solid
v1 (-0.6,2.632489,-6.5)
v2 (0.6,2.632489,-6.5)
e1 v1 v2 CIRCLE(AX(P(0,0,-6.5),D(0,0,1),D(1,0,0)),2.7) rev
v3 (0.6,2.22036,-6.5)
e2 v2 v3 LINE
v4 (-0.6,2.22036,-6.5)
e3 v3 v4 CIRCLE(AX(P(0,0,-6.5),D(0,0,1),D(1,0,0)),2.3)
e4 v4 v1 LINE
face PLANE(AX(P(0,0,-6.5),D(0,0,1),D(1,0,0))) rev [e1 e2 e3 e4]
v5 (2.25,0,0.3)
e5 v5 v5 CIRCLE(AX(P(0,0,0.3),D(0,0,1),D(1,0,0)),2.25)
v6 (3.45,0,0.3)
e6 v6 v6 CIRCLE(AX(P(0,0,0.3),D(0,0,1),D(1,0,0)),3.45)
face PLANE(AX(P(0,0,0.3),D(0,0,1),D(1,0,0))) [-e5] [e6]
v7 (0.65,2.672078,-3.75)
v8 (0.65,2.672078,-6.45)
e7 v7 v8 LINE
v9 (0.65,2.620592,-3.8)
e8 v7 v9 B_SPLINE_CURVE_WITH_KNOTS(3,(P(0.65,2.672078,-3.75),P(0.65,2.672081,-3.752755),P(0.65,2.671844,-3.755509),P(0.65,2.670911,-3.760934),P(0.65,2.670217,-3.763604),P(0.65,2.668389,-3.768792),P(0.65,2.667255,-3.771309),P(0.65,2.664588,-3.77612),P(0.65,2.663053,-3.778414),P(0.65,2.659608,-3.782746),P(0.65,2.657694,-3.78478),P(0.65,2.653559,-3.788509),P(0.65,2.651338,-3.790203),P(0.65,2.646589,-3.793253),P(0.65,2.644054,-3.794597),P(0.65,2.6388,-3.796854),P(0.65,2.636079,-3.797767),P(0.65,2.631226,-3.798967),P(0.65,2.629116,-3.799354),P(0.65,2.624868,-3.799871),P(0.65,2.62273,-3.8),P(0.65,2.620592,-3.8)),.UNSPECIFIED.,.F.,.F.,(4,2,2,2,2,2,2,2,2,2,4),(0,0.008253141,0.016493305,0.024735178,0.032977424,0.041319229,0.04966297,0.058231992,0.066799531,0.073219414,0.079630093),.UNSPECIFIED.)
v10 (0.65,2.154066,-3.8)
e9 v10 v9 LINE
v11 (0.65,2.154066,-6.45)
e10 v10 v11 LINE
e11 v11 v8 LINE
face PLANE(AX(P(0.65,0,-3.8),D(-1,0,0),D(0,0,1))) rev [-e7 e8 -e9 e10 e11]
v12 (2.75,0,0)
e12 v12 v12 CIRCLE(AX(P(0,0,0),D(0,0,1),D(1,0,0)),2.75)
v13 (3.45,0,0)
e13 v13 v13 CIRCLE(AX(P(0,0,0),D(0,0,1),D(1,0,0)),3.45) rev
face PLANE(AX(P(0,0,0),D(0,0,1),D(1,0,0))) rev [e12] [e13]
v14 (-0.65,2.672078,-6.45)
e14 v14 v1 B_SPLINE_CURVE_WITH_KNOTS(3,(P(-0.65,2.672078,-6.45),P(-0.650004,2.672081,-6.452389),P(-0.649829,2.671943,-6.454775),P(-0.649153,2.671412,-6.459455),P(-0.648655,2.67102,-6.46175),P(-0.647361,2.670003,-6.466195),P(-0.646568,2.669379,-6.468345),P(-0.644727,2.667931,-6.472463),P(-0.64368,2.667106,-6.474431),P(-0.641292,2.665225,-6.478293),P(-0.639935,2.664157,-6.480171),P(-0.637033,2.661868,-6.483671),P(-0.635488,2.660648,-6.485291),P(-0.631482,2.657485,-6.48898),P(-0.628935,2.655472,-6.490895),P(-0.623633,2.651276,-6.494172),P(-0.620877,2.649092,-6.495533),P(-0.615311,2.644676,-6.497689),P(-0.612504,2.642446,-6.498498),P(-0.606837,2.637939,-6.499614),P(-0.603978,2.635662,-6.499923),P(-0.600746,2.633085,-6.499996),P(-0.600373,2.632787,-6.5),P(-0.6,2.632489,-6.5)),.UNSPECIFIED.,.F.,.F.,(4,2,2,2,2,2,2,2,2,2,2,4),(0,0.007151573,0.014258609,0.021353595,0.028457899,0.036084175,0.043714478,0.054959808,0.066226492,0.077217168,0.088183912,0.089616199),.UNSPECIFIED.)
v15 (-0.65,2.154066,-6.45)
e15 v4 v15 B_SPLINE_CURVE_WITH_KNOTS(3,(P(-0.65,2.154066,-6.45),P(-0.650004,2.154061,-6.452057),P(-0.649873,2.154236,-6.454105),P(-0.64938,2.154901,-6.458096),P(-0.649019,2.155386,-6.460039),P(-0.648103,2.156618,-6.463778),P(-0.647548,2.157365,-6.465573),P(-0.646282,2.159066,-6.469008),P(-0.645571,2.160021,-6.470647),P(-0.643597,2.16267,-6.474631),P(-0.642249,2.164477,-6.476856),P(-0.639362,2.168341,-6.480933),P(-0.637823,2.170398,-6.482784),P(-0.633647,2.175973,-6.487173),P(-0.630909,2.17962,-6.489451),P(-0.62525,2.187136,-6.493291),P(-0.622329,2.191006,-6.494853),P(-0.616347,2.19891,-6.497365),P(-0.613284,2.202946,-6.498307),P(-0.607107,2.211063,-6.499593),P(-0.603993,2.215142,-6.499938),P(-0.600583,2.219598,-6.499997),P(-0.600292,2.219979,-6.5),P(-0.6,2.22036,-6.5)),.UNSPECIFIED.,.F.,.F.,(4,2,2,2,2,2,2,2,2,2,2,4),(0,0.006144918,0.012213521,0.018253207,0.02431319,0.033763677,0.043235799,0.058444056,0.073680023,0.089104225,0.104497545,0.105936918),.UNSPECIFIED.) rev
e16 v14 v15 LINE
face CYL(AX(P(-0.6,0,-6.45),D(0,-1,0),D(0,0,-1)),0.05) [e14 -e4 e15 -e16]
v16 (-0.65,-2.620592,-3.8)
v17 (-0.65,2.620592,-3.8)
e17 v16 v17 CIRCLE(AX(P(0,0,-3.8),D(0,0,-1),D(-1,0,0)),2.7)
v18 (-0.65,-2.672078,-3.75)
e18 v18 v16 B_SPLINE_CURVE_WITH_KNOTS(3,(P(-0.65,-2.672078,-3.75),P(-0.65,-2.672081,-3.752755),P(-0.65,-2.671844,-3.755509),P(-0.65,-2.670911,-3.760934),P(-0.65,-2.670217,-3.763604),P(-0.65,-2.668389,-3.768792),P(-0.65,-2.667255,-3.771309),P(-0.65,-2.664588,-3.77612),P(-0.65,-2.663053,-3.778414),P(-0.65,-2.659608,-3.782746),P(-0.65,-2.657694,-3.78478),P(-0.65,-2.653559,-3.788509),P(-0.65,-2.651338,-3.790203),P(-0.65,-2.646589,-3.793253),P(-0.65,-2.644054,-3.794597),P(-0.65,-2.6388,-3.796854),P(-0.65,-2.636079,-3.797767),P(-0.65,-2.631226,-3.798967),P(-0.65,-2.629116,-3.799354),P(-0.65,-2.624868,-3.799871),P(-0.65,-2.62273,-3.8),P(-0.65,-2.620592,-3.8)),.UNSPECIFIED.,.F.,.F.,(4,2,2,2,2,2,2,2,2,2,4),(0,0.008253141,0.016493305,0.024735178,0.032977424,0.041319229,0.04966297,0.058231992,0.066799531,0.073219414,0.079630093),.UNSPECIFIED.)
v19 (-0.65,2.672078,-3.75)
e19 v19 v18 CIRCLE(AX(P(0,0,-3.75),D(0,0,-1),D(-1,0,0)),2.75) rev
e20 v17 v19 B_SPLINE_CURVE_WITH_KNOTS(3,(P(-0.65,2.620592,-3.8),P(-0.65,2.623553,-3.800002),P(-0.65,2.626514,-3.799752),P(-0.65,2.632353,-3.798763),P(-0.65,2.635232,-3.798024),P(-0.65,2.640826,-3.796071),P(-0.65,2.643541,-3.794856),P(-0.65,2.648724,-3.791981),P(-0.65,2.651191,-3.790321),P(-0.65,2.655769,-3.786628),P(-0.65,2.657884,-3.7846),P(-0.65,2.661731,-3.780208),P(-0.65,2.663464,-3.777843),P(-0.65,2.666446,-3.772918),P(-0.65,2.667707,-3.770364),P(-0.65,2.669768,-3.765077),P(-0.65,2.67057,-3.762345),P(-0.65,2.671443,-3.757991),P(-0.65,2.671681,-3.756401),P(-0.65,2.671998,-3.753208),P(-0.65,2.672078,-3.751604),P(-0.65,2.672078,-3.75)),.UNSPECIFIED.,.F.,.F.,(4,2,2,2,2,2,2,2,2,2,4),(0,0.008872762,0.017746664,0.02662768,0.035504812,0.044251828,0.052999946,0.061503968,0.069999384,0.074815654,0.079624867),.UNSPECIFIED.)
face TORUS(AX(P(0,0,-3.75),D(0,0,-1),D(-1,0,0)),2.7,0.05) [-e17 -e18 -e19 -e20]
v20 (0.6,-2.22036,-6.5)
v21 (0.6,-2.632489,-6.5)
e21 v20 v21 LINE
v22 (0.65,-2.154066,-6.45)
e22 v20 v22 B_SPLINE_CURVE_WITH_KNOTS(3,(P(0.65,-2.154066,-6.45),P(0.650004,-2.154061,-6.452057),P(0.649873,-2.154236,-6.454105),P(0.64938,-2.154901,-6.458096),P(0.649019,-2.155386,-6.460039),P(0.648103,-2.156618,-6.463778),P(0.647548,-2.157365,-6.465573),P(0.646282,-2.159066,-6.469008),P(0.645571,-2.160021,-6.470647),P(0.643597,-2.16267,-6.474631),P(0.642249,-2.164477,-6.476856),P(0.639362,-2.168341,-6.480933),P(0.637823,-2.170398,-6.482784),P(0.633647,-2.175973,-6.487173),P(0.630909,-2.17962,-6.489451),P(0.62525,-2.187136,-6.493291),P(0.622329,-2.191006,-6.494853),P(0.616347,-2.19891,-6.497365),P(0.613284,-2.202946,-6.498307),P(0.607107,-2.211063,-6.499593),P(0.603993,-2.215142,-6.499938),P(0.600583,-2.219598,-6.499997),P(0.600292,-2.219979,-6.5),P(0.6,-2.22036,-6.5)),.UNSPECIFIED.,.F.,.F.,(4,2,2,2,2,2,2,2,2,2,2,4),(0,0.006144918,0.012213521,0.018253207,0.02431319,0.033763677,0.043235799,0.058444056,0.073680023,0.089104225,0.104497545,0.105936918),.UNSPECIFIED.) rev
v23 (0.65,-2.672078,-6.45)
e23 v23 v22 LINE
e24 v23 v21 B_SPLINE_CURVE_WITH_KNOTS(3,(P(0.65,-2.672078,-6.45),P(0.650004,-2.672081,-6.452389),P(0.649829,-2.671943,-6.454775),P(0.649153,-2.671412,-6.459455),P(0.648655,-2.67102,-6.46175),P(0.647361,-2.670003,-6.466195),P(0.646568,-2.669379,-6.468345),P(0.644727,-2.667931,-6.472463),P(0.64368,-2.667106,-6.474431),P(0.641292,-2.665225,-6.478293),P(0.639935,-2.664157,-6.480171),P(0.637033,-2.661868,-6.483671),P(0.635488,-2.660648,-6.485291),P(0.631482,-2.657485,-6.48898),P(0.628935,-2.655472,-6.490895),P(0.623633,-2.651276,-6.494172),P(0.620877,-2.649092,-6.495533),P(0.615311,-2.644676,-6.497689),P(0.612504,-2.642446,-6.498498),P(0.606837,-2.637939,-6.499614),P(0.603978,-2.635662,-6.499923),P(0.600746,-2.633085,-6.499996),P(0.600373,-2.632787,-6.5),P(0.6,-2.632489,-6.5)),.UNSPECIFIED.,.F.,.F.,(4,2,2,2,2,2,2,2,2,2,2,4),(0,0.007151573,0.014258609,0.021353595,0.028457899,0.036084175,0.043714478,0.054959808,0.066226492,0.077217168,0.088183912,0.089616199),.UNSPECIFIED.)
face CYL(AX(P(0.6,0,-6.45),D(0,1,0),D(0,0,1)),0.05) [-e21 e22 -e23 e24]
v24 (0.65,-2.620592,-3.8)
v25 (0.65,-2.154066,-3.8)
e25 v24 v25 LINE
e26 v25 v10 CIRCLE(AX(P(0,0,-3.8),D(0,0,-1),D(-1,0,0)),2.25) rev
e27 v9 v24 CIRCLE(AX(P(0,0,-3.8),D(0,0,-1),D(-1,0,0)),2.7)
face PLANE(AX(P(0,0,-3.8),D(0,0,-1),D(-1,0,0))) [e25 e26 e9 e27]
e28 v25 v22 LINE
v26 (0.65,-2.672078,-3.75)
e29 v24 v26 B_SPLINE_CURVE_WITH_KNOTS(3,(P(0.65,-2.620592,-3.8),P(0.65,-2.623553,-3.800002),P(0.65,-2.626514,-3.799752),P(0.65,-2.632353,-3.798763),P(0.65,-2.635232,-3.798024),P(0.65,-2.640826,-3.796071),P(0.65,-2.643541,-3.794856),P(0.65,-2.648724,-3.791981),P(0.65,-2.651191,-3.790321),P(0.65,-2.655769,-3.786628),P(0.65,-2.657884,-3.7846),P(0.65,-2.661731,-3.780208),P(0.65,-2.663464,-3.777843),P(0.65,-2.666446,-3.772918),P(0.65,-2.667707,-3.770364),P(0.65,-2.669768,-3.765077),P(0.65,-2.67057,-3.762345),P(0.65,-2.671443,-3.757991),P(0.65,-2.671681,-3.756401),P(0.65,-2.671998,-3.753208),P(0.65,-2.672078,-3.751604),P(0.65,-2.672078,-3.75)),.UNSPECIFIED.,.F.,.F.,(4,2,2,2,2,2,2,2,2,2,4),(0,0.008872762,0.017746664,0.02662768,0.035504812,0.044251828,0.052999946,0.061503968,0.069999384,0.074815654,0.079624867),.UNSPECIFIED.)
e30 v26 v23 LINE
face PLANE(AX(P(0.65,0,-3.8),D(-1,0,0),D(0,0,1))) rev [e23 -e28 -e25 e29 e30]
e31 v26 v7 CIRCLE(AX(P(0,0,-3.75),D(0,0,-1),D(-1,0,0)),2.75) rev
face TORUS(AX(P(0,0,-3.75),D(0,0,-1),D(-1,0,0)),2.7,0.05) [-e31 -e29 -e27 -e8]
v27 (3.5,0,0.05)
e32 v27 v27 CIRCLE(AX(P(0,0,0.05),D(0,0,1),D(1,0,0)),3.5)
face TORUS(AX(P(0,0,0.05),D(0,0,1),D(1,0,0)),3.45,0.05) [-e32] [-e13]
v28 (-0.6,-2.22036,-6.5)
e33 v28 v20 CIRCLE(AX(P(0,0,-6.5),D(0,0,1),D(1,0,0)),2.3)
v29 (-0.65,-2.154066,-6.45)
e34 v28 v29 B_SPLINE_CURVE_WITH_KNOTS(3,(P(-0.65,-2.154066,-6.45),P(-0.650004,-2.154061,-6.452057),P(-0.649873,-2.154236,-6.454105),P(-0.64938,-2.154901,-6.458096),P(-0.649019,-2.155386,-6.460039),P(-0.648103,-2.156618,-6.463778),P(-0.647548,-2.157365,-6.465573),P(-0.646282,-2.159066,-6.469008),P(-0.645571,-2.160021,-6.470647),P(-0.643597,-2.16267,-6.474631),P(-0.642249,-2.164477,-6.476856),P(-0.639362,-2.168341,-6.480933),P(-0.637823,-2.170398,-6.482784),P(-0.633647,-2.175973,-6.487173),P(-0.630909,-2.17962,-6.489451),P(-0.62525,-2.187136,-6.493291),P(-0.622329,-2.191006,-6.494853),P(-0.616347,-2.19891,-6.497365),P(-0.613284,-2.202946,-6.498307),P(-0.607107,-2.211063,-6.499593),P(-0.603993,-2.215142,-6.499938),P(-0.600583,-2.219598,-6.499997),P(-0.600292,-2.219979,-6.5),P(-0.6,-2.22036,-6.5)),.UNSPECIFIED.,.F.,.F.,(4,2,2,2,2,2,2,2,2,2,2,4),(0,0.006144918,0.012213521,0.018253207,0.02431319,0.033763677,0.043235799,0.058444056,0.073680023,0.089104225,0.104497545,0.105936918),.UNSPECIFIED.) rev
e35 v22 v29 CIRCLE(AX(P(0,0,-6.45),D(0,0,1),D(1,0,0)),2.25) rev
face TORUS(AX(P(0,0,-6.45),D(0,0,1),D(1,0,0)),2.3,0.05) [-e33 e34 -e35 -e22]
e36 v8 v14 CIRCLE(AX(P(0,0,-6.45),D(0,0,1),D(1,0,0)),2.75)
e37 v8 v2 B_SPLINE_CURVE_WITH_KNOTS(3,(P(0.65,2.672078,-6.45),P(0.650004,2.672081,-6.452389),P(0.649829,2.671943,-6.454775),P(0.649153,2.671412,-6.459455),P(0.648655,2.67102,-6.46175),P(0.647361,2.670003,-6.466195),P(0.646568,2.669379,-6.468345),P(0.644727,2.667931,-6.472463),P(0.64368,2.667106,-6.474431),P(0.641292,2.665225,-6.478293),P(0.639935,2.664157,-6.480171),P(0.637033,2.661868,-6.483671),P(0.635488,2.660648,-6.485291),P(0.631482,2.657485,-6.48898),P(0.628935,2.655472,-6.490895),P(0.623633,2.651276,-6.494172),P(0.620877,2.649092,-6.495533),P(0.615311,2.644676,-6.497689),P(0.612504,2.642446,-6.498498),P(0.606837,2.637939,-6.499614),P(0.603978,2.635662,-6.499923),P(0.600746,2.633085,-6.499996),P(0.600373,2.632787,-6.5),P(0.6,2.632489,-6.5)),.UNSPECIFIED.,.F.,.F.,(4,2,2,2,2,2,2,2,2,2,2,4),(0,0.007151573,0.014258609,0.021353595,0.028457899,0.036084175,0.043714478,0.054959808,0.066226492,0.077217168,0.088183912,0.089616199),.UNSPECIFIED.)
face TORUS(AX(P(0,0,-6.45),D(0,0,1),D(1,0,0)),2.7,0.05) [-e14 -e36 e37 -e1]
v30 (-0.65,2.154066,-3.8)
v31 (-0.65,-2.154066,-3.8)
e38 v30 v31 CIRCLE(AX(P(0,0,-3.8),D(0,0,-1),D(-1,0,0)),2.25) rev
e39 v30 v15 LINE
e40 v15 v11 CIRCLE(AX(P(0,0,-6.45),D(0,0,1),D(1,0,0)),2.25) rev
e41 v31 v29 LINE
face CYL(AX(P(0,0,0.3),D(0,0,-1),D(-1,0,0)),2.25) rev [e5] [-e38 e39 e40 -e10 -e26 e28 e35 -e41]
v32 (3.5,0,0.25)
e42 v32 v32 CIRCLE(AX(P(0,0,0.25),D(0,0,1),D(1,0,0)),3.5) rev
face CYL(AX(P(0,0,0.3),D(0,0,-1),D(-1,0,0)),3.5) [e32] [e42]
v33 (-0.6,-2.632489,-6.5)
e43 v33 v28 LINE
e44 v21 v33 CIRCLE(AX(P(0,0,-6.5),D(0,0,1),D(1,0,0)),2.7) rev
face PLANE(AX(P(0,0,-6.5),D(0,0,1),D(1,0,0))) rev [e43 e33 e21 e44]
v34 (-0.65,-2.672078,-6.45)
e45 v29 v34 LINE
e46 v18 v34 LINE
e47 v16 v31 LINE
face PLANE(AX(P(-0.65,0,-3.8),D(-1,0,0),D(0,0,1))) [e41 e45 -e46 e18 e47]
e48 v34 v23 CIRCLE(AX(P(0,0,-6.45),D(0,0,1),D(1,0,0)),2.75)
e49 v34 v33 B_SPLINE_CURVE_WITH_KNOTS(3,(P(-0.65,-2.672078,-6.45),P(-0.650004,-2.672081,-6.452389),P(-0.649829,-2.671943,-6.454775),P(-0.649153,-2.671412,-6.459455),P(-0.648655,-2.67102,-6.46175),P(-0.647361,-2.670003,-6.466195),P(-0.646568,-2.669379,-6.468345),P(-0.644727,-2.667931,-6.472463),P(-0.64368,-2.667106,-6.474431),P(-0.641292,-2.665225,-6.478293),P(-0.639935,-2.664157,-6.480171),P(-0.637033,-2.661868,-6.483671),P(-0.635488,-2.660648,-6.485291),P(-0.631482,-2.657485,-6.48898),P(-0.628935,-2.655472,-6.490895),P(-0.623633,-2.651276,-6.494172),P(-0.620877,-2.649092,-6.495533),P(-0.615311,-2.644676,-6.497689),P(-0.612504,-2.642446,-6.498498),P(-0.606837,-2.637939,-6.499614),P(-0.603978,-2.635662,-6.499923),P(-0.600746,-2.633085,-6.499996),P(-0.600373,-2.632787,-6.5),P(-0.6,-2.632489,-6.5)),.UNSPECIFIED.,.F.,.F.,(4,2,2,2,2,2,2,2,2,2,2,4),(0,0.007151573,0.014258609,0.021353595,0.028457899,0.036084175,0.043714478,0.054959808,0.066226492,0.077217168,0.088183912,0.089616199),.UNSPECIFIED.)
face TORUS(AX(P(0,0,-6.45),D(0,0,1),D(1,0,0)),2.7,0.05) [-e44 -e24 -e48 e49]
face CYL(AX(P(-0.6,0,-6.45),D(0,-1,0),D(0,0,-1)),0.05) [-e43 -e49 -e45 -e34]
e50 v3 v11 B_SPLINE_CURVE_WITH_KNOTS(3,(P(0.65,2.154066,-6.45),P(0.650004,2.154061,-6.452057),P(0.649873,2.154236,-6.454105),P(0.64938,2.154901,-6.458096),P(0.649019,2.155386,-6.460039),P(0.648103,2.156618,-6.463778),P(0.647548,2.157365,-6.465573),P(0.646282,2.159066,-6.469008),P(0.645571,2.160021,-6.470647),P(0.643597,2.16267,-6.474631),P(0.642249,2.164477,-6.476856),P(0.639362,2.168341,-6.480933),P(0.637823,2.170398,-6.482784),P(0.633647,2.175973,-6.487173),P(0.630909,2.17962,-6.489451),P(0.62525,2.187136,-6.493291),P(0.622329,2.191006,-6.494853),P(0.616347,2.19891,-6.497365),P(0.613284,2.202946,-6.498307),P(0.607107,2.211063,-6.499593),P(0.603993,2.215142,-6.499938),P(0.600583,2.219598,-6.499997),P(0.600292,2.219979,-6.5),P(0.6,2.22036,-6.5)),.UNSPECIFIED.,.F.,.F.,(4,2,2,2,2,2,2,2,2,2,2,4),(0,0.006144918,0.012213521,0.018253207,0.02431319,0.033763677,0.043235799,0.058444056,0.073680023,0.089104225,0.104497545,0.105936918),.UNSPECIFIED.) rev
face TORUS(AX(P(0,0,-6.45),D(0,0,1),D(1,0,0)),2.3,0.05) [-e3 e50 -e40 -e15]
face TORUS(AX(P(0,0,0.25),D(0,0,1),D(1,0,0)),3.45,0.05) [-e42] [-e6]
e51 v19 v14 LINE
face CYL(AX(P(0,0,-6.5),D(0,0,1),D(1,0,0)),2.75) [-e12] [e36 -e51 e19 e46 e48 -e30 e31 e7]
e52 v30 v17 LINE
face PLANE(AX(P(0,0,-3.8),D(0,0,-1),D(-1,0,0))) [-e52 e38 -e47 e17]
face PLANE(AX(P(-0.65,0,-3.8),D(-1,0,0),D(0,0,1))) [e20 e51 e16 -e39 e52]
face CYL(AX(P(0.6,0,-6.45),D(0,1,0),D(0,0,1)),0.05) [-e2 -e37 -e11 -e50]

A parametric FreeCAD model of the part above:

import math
import FreeCAD as App
import Part
import Sketcher

V = App.Vector


def edges_at(feature, points):
    """Names of the edges that pass closest to the given points."""
    edges = feature.Shape.Edges
    near = lambda p: min(range(len(edges)), key=lambda i: edges[i].distToShape(Part.Vertex(*p))[0])
    return sorted({f"Edge{near(p) + 1}" for p in points})

doc = App.newDocument("Part")
params = doc.addObject("Spreadsheet::Sheet", "Params")
for row, (alias, value) in enumerate([
    ("sketch1_diameter", "7 mm"),
    ("sketch1_diameter2", "4.5 mm"),
    ("pad1_length", "0.3 mm"),
    ("sketch2_diameter", "5.5 mm"),
    ("sketch2_diameter2", "4.5 mm"),
    ("pad2_length", "6.5 mm"),
    ("sketch3_radius", "2.75 mm"),
    ("sketch3_radius2", "2.25 mm"),
    ("pocket1_length", "2.7 mm"),
    ("fillet_radius", "0.05 mm"),
], start=1):
    params.set(f"A{row}", alias)
    params.set(f"B{row}", "=" + value)
    params.setAlias(f"B{row}", alias)

body = doc.addObject("PartDesign::Body", "Body")

# Sketch on XY plane
sketch1 = body.newObject("Sketcher::SketchObject", "Sketch")
sketch1.AttachmentSupport = (doc.getObject("XY_Plane"), [""])
sketch1.MapMode = "FlatFace"
sketch1.addGeometry([
    Part.Circle(V(0, 0, 0), V(0, 0, 1), 3.5),
    Part.Circle(V(0, 0, 0), V(0, 0, 1), 2.2),
], False)
sketch1.addConstraint([
    Sketcher.Constraint("Coincident", 0, 3, -1, 1),
    Sketcher.Constraint("Coincident", 1, 3, -1, 1),
    Sketcher.Constraint("Diameter", 0, 7.0),
    Sketcher.Constraint("Diameter", 1, 4.5),
])
sketch1.setExpression("Constraints[2]", "Params.sketch1_diameter")
sketch1.setExpression("Constraints[3]", "Params.sketch1_diameter2")
pad1 = body.newObject("PartDesign::Pad", "Pad")
pad1.Profile = sketch1
pad1.setExpression("Length", "Params.pad1_length")

# Sketch on XY plane
sketch2 = body.newObject("Sketcher::SketchObject", "Sketch001")
sketch2.AttachmentSupport = (doc.getObject("XY_Plane"), [""])
sketch2.MapMode = "FlatFace"
sketch2.addGeometry([
    Part.Circle(V(0, 0, 0), V(0, 0, 1), 2.8),
    Part.Circle(V(0, 0, 0), V(0, 0, 1), 2.2),
], False)
sketch2.addConstraint([
    Sketcher.Constraint("Coincident", 0, 3, -1, 1),
    Sketcher.Constraint("Coincident", 1, 3, -1, 1),
    Sketcher.Constraint("Diameter", 0, 5.5),
    Sketcher.Constraint("Diameter", 1, 4.5),
])
sketch2.setExpression("Constraints[2]", "Params.sketch2_diameter")
sketch2.setExpression("Constraints[3]", "Params.sketch2_diameter2")
pad2 = body.newObject("PartDesign::Pad", "Pad001")
pad2.Profile = sketch2
pad2.setExpression("Length", "Params.pad2_length")
pad2.Reversed = True

# Sketch on XY plane
sketch3 = body.newObject("Sketcher::SketchObject", "Sketch002")
sketch3.AttachmentSupport = (doc.getObject("XY_Plane"), [""])
sketch3.MapMode = "FlatFace"
sketch3.AttachmentOffset = App.Placement(V(0, 0, -6.5), App.Rotation())
sketch3.addGeometry([
    Part.ArcOfCircle(Part.Circle(V(0, 0, 0), V(0, 0, 1), 2.8), math.radians(-76), math.radians(76)),  # 0
    Part.LineSegment(V(0.7, -2.7, 0), V(0.7, -2.2, 0)),  # 1
    Part.ArcOfCircle(Part.Circle(V(0, 0, 0), V(0, 0, 1), 2.2), math.radians(-73), math.radians(73)),  # 2
    Part.LineSegment(V(0.7, 2.2, 0), V(0.7, 2.7, 0)),  # 3
    Part.LineSegment(V(-0.7, -2.2, 0), V(-0.7, -2.7, 0)),  # 4
    Part.ArcOfCircle(Part.Circle(V(0, 0, 0), V(0, 0, 1), 2.7), math.radians(180), math.radians(256)),  # 5
    Part.ArcOfCircle(Part.Circle(V(0, 0, 0), V(0, 0, 1), 2.7), math.radians(104), math.radians(180)),  # 6
    Part.LineSegment(V(-0.7, 2.7, 0), V(-0.7, 2.2, 0)),  # 7
    Part.ArcOfCircle(Part.Circle(V(0, 0, 0), V(0, 0, 1), 2.3), math.radians(107), math.radians(180)),  # 8
    Part.ArcOfCircle(Part.Circle(V(0, 0, 0), V(0, 0, 1), 2.3), math.radians(-180), math.radians(-107)),  # 9
], False)
sketch3.addConstraint([
    Sketcher.Constraint("Coincident", 0, 1, 1, 1),
    Sketcher.Constraint("Coincident", 1, 2, 2, 1),
    Sketcher.Constraint("Coincident", 2, 2, 3, 1),
    Sketcher.Constraint("Coincident", 3, 2, 0, 2),
    Sketcher.Constraint("Coincident", 4, 2, 5, 2),
    Sketcher.Constraint("Tangent", 5, 1, 6, 2),
    Sketcher.Constraint("Coincident", 6, 1, 7, 1),
    Sketcher.Constraint("Coincident", 7, 2, 8, 1),
    Sketcher.Constraint("Tangent", 8, 2, 9, 1),
    Sketcher.Constraint("Coincident", 9, 2, 4, 1),
    Sketcher.Constraint("Vertical", 1),
    Sketcher.Constraint("Vertical", 3),
    Sketcher.Constraint("Vertical", 4),
    Sketcher.Constraint("Vertical", 7),
    Sketcher.Constraint("Coincident", 0, 3, -1, 1),
    Sketcher.Constraint("Coincident", 2, 3, -1, 1),
    Sketcher.Constraint("Coincident", 5, 3, -1, 1),
    Sketcher.Constraint("Coincident", 8, 3, -1, 1),
    Sketcher.Constraint("Equal", 0, 5),
    Sketcher.Constraint("Equal", 5, 6),
    Sketcher.Constraint("Equal", 2, 8),
    Sketcher.Constraint("Equal", 8, 9),
    Sketcher.Constraint("PointOnObject", 5, 1, -1),
    Sketcher.Constraint("PointOnObject", 8, 2, -1),
    Sketcher.Constraint("Horizontal", 0, 1, 4, 2),
    Sketcher.Constraint("Horizontal", 3, 2, 6, 1),
    Sketcher.Constraint("Vertical", 1, 2, 2, 2),
    Sketcher.Constraint("Radius", 0, 2.75),
    Sketcher.Constraint("Radius", 2, 2.25),
    Sketcher.Constraint("DistanceX", 4, 2, 0, 1, 1.3),
])
sketch3.setExpression("Constraints[27]", "Params.sketch3_radius")
sketch3.setExpression("Constraints[28]", "Params.sketch3_radius2")
pocket1 = body.newObject("PartDesign::Pocket", "Pocket")
pocket1.Profile = sketch3
pocket1.setExpression("Length", "Params.pocket1_length")
pocket1.Reversed = True
doc.recompute()

fillet = body.newObject("PartDesign::Fillet", "Fillet")
fillet.Base = (pocket1, edges_at(pocket1, [
    (2.162, -1.699, -3.8),
    (0.65, -2.413, -6.5),
    (0.65, 2.413, -6.5),
    (0, -2.75, -6.5),
    (0, -2.25, -6.5),
    (-0.65, -2.413, -6.5),
    (-0.65, 2.413, -6.5),
    (-2.162, -1.699, -3.8),
    (-3.5, 0, 0),
    (-3.5, 0, 0.3),
    (0, 2.75, -6.5),
    (0, 2.25, -6.5),
]))
fillet.setExpression("Radius", "Params.fillet_radius")

doc.recompute()
